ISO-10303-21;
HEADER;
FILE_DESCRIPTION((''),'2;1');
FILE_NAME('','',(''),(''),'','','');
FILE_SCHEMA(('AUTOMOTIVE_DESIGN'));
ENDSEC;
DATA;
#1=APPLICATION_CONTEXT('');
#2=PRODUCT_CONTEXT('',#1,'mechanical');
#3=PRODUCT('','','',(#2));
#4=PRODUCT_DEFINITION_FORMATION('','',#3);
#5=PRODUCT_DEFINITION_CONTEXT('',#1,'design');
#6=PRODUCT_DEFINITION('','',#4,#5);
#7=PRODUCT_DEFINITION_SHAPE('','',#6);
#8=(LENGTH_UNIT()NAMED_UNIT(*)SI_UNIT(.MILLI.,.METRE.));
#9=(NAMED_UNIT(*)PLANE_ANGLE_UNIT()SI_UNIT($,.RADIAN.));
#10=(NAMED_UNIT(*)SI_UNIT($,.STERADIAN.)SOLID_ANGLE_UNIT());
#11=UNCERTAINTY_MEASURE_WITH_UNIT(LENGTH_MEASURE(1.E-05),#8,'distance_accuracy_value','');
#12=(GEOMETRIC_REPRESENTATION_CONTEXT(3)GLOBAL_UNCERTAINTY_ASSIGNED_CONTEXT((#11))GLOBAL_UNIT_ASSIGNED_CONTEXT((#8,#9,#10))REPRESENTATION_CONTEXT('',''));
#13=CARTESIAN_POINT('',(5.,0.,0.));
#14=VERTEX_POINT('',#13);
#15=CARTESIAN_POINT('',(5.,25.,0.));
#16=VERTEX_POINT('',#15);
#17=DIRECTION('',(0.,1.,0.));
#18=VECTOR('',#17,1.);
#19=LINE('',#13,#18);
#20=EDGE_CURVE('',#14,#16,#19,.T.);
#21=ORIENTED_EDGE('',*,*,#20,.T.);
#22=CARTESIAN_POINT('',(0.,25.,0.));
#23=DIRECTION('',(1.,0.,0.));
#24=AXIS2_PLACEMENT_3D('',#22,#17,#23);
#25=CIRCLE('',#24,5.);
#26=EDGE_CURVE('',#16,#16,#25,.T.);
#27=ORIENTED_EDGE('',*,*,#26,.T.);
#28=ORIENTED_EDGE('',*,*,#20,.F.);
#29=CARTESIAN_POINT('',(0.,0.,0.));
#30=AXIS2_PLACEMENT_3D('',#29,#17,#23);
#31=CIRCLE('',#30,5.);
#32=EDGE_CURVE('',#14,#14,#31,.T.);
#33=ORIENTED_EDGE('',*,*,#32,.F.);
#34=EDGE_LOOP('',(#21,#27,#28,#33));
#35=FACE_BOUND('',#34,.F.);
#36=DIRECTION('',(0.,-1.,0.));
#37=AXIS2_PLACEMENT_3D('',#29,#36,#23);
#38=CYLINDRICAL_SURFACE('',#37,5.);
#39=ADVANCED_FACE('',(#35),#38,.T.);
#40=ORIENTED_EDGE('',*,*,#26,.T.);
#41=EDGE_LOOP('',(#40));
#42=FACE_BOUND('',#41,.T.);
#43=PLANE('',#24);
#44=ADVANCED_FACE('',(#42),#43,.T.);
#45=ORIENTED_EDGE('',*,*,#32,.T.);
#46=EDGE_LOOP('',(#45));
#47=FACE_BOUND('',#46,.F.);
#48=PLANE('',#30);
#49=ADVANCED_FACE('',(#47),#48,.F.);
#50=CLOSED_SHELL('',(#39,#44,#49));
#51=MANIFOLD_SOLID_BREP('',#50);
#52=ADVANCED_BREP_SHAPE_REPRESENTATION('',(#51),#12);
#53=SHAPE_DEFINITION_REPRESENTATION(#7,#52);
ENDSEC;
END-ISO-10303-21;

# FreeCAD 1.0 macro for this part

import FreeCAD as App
import Part
import Sketcher
from FreeCAD import Vector
Q = App.Units.Quantity

doc = App.newDocument("Part")
params = doc.addObject("Spreadsheet::Sheet", "Params")
for row, (alias, value) in enumerate([
    ("sketch1_diameter", "10 mm"),
    ("pad1_length", "25 mm"),
], start=1):
    params.set(f"A{row}", alias)
    params.set(f"B{row}", "=" + value)
    params.setAlias(f"B{row}", alias)

body = doc.addObject("PartDesign::Body", "Body")

# Sketch on XZ plane
sketch1 = body.newObject("Sketcher::SketchObject", "Sketch")
sketch1.AttachmentSupport = (doc.getObject("XZ_Plane"), [""])
sketch1.MapMode = "FlatFace"
sketch1.addGeometry(Part.Circle(Vector(0, 0, 0), Vector(0, 0, 1), 5), False)
sketch1.addConstraint([
    Sketcher.Constraint("Coincident", 0, 3, -1, 1),
    Sketcher.Constraint("Diameter", 0, Q("10 mm")),
])
sketch1.setExpression("Constraints[1]", "Params.sketch1_diameter")
pad1 = body.newObject("PartDesign::Pad", "Pad")
pad1.Profile = sketch1
pad1.setExpression("Length", "Params.pad1_length")
pad1.Reversed = True

doc.recompute()
